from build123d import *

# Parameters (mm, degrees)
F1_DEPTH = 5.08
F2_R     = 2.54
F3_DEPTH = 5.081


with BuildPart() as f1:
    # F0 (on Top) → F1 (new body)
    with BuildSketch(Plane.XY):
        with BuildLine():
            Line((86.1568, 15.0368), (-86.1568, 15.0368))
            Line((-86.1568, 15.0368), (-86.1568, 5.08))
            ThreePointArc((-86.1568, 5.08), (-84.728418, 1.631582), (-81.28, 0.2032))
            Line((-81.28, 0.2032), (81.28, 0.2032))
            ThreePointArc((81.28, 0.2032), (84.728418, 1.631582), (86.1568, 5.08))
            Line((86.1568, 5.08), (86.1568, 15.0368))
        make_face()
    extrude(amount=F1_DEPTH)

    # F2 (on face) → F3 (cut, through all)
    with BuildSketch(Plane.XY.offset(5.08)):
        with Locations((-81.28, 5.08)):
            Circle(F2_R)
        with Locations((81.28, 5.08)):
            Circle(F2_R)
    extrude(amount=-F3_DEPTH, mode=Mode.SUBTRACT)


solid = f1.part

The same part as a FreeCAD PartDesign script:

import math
import FreeCAD as App
import Part
import Sketcher

V = App.Vector
Q = App.Units.Quantity

doc = App.newDocument("Part")
params = doc.addObject("Spreadsheet::Sheet", "Params")
for row, (alias, value) in enumerate([
    ("sketch1_width", "6.4 in"),
    ("sketch1_radius", "0.192 in"),
    ("sketch1_height", "0.392 in"),
    ("pad1_length", "0.2 in"),
    ("sketch2_diameter", "0.2 in"),
], start=1):
    params.set(f"A{row}", alias)
    params.set(f"B{row}", "=" + value)
    params.setAlias(f"B{row}", alias)

body = doc.addObject("PartDesign::Body", "Body")

# Sketch on XY plane
sketch1 = body.newObject("Sketcher::SketchObject", "Sketch")
sketch1.AttachmentSupport = (doc.getObject("XY_Plane"), [""])
sketch1.MapMode = "FlatFace"
sketch1.addGeometry(Part.LineSegment(V(86.2, 15, 0), V(-86.2, 15, 0)), False)
sketch1.addGeometry(Part.LineSegment(V(-86.2, 15, 0), V(-86.2, 5.1, 0)), False)
sketch1.addGeometry(Part.ArcOfCircle(Part.Circle(V(-81.3, 5.1, 0), V(0, 0, 1), 4.9), math.radians(-180), math.radians(-90)), False)
sketch1.addGeometry(Part.LineSegment(V(-81.3, 0.2, 0), V(81.3, 0.2, 0)), False)
sketch1.addGeometry(Part.ArcOfCircle(Part.Circle(V(81.3, 5.1, 0), V(0, 0, 1), 4.9), math.radians(-90), math.radians(0)), False)
sketch1.addGeometry(Part.LineSegment(V(86.2, 5.1, 0), V(86.2, 15, 0)), False)
sketch1.addConstraint(Sketcher.Constraint("Coincident", 0, 2, 1, 1))
sketch1.addConstraint(Sketcher.Constraint("Tangent", 1, 2, 2, 1))
sketch1.addConstraint(Sketcher.Constraint("Tangent", 2, 2, 3, 1))
sketch1.addConstraint(Sketcher.Constraint("Tangent", 3, 2, 4, 1))
sketch1.addConstraint(Sketcher.Constraint("Tangent", 4, 2, 5, 1))
sketch1.addConstraint(Sketcher.Constraint("Coincident", 5, 2, 0, 1))
sketch1.addConstraint(Sketcher.Constraint("Horizontal", 0))
sketch1.addConstraint(Sketcher.Constraint("Vertical", 1))
sketch1.addConstraint(Sketcher.Constraint("Horizontal", 3))
sketch1.addConstraint(Sketcher.Constraint("Vertical", 5))
sketch1.addConstraint(Sketcher.Constraint("Equal", 2, 4))
sketch1.addConstraint(Sketcher.Constraint("DistanceX", 3, 1, 3, 2, Q("6.4 in")))
sketch1.addConstraint(Sketcher.Constraint("Radius", 2, Q("0.192 in")))
sketch1.addConstraint(Sketcher.Constraint("DistanceX", 2, 3, -1, 1, Q("3.2 in")))
sketch1.addConstraint(Sketcher.Constraint("DistanceY", -1, 1, 2, 3, Q("0.2 in")))
sketch1.addConstraint(Sketcher.Constraint("DistanceY", 1, 2, 1, 1, Q("0.392 in")))
sketch1.setExpression("Constraints[11]", "Params.sketch1_width")
sketch1.setExpression("Constraints[12]", "Params.sketch1_radius")
sketch1.setExpression("Constraints[15]", "Params.sketch1_height")
pad1 = body.newObject("PartDesign::Pad", "Pad")
pad1.Profile = sketch1
pad1.setExpression("Length", "Params.pad1_length")

# Sketch on XY plane
sketch2 = body.newObject("Sketcher::SketchObject", "Sketch001")
sketch2.AttachmentSupport = (doc.getObject("XY_Plane"), [""])
sketch2.MapMode = "FlatFace"
sketch2.AttachmentOffset = App.Placement(V(0, 0, 0.2 * 25.4), App.Rotation())
sketch2.addGeometry(Part.Circle(V(-81.3, 5.1, 0), V(0, 0, 1), 2.5), False)
sketch2.addGeometry(Part.Circle(V(81.3, 5.1, 0), V(0, 0, 1), 2.5), False)
sketch2.addConstraint(Sketcher.Constraint("Equal", 0, 1))
sketch2.addConstraint(Sketcher.Constraint("Symmetric", 0, 3, 1, 3, -2))
sketch2.addConstraint(Sketcher.Constraint("Diameter", 0, Q("0.2 in")))
sketch2.addConstraint(Sketcher.Constraint("DistanceX", 0, 3, -1, 1, Q("3.2 in")))
sketch2.addConstraint(Sketcher.Constraint("DistanceY", -1, 1, 0, 3, Q("0.2 in")))
sketch2.setExpression("Constraints[2]", "Params.sketch2_diameter")
pocket1 = body.newObject("PartDesign::Pocket", "Pocket")
pocket1.Profile = sketch2
pocket1.Type = "ThroughAll"

doc.recompute()
